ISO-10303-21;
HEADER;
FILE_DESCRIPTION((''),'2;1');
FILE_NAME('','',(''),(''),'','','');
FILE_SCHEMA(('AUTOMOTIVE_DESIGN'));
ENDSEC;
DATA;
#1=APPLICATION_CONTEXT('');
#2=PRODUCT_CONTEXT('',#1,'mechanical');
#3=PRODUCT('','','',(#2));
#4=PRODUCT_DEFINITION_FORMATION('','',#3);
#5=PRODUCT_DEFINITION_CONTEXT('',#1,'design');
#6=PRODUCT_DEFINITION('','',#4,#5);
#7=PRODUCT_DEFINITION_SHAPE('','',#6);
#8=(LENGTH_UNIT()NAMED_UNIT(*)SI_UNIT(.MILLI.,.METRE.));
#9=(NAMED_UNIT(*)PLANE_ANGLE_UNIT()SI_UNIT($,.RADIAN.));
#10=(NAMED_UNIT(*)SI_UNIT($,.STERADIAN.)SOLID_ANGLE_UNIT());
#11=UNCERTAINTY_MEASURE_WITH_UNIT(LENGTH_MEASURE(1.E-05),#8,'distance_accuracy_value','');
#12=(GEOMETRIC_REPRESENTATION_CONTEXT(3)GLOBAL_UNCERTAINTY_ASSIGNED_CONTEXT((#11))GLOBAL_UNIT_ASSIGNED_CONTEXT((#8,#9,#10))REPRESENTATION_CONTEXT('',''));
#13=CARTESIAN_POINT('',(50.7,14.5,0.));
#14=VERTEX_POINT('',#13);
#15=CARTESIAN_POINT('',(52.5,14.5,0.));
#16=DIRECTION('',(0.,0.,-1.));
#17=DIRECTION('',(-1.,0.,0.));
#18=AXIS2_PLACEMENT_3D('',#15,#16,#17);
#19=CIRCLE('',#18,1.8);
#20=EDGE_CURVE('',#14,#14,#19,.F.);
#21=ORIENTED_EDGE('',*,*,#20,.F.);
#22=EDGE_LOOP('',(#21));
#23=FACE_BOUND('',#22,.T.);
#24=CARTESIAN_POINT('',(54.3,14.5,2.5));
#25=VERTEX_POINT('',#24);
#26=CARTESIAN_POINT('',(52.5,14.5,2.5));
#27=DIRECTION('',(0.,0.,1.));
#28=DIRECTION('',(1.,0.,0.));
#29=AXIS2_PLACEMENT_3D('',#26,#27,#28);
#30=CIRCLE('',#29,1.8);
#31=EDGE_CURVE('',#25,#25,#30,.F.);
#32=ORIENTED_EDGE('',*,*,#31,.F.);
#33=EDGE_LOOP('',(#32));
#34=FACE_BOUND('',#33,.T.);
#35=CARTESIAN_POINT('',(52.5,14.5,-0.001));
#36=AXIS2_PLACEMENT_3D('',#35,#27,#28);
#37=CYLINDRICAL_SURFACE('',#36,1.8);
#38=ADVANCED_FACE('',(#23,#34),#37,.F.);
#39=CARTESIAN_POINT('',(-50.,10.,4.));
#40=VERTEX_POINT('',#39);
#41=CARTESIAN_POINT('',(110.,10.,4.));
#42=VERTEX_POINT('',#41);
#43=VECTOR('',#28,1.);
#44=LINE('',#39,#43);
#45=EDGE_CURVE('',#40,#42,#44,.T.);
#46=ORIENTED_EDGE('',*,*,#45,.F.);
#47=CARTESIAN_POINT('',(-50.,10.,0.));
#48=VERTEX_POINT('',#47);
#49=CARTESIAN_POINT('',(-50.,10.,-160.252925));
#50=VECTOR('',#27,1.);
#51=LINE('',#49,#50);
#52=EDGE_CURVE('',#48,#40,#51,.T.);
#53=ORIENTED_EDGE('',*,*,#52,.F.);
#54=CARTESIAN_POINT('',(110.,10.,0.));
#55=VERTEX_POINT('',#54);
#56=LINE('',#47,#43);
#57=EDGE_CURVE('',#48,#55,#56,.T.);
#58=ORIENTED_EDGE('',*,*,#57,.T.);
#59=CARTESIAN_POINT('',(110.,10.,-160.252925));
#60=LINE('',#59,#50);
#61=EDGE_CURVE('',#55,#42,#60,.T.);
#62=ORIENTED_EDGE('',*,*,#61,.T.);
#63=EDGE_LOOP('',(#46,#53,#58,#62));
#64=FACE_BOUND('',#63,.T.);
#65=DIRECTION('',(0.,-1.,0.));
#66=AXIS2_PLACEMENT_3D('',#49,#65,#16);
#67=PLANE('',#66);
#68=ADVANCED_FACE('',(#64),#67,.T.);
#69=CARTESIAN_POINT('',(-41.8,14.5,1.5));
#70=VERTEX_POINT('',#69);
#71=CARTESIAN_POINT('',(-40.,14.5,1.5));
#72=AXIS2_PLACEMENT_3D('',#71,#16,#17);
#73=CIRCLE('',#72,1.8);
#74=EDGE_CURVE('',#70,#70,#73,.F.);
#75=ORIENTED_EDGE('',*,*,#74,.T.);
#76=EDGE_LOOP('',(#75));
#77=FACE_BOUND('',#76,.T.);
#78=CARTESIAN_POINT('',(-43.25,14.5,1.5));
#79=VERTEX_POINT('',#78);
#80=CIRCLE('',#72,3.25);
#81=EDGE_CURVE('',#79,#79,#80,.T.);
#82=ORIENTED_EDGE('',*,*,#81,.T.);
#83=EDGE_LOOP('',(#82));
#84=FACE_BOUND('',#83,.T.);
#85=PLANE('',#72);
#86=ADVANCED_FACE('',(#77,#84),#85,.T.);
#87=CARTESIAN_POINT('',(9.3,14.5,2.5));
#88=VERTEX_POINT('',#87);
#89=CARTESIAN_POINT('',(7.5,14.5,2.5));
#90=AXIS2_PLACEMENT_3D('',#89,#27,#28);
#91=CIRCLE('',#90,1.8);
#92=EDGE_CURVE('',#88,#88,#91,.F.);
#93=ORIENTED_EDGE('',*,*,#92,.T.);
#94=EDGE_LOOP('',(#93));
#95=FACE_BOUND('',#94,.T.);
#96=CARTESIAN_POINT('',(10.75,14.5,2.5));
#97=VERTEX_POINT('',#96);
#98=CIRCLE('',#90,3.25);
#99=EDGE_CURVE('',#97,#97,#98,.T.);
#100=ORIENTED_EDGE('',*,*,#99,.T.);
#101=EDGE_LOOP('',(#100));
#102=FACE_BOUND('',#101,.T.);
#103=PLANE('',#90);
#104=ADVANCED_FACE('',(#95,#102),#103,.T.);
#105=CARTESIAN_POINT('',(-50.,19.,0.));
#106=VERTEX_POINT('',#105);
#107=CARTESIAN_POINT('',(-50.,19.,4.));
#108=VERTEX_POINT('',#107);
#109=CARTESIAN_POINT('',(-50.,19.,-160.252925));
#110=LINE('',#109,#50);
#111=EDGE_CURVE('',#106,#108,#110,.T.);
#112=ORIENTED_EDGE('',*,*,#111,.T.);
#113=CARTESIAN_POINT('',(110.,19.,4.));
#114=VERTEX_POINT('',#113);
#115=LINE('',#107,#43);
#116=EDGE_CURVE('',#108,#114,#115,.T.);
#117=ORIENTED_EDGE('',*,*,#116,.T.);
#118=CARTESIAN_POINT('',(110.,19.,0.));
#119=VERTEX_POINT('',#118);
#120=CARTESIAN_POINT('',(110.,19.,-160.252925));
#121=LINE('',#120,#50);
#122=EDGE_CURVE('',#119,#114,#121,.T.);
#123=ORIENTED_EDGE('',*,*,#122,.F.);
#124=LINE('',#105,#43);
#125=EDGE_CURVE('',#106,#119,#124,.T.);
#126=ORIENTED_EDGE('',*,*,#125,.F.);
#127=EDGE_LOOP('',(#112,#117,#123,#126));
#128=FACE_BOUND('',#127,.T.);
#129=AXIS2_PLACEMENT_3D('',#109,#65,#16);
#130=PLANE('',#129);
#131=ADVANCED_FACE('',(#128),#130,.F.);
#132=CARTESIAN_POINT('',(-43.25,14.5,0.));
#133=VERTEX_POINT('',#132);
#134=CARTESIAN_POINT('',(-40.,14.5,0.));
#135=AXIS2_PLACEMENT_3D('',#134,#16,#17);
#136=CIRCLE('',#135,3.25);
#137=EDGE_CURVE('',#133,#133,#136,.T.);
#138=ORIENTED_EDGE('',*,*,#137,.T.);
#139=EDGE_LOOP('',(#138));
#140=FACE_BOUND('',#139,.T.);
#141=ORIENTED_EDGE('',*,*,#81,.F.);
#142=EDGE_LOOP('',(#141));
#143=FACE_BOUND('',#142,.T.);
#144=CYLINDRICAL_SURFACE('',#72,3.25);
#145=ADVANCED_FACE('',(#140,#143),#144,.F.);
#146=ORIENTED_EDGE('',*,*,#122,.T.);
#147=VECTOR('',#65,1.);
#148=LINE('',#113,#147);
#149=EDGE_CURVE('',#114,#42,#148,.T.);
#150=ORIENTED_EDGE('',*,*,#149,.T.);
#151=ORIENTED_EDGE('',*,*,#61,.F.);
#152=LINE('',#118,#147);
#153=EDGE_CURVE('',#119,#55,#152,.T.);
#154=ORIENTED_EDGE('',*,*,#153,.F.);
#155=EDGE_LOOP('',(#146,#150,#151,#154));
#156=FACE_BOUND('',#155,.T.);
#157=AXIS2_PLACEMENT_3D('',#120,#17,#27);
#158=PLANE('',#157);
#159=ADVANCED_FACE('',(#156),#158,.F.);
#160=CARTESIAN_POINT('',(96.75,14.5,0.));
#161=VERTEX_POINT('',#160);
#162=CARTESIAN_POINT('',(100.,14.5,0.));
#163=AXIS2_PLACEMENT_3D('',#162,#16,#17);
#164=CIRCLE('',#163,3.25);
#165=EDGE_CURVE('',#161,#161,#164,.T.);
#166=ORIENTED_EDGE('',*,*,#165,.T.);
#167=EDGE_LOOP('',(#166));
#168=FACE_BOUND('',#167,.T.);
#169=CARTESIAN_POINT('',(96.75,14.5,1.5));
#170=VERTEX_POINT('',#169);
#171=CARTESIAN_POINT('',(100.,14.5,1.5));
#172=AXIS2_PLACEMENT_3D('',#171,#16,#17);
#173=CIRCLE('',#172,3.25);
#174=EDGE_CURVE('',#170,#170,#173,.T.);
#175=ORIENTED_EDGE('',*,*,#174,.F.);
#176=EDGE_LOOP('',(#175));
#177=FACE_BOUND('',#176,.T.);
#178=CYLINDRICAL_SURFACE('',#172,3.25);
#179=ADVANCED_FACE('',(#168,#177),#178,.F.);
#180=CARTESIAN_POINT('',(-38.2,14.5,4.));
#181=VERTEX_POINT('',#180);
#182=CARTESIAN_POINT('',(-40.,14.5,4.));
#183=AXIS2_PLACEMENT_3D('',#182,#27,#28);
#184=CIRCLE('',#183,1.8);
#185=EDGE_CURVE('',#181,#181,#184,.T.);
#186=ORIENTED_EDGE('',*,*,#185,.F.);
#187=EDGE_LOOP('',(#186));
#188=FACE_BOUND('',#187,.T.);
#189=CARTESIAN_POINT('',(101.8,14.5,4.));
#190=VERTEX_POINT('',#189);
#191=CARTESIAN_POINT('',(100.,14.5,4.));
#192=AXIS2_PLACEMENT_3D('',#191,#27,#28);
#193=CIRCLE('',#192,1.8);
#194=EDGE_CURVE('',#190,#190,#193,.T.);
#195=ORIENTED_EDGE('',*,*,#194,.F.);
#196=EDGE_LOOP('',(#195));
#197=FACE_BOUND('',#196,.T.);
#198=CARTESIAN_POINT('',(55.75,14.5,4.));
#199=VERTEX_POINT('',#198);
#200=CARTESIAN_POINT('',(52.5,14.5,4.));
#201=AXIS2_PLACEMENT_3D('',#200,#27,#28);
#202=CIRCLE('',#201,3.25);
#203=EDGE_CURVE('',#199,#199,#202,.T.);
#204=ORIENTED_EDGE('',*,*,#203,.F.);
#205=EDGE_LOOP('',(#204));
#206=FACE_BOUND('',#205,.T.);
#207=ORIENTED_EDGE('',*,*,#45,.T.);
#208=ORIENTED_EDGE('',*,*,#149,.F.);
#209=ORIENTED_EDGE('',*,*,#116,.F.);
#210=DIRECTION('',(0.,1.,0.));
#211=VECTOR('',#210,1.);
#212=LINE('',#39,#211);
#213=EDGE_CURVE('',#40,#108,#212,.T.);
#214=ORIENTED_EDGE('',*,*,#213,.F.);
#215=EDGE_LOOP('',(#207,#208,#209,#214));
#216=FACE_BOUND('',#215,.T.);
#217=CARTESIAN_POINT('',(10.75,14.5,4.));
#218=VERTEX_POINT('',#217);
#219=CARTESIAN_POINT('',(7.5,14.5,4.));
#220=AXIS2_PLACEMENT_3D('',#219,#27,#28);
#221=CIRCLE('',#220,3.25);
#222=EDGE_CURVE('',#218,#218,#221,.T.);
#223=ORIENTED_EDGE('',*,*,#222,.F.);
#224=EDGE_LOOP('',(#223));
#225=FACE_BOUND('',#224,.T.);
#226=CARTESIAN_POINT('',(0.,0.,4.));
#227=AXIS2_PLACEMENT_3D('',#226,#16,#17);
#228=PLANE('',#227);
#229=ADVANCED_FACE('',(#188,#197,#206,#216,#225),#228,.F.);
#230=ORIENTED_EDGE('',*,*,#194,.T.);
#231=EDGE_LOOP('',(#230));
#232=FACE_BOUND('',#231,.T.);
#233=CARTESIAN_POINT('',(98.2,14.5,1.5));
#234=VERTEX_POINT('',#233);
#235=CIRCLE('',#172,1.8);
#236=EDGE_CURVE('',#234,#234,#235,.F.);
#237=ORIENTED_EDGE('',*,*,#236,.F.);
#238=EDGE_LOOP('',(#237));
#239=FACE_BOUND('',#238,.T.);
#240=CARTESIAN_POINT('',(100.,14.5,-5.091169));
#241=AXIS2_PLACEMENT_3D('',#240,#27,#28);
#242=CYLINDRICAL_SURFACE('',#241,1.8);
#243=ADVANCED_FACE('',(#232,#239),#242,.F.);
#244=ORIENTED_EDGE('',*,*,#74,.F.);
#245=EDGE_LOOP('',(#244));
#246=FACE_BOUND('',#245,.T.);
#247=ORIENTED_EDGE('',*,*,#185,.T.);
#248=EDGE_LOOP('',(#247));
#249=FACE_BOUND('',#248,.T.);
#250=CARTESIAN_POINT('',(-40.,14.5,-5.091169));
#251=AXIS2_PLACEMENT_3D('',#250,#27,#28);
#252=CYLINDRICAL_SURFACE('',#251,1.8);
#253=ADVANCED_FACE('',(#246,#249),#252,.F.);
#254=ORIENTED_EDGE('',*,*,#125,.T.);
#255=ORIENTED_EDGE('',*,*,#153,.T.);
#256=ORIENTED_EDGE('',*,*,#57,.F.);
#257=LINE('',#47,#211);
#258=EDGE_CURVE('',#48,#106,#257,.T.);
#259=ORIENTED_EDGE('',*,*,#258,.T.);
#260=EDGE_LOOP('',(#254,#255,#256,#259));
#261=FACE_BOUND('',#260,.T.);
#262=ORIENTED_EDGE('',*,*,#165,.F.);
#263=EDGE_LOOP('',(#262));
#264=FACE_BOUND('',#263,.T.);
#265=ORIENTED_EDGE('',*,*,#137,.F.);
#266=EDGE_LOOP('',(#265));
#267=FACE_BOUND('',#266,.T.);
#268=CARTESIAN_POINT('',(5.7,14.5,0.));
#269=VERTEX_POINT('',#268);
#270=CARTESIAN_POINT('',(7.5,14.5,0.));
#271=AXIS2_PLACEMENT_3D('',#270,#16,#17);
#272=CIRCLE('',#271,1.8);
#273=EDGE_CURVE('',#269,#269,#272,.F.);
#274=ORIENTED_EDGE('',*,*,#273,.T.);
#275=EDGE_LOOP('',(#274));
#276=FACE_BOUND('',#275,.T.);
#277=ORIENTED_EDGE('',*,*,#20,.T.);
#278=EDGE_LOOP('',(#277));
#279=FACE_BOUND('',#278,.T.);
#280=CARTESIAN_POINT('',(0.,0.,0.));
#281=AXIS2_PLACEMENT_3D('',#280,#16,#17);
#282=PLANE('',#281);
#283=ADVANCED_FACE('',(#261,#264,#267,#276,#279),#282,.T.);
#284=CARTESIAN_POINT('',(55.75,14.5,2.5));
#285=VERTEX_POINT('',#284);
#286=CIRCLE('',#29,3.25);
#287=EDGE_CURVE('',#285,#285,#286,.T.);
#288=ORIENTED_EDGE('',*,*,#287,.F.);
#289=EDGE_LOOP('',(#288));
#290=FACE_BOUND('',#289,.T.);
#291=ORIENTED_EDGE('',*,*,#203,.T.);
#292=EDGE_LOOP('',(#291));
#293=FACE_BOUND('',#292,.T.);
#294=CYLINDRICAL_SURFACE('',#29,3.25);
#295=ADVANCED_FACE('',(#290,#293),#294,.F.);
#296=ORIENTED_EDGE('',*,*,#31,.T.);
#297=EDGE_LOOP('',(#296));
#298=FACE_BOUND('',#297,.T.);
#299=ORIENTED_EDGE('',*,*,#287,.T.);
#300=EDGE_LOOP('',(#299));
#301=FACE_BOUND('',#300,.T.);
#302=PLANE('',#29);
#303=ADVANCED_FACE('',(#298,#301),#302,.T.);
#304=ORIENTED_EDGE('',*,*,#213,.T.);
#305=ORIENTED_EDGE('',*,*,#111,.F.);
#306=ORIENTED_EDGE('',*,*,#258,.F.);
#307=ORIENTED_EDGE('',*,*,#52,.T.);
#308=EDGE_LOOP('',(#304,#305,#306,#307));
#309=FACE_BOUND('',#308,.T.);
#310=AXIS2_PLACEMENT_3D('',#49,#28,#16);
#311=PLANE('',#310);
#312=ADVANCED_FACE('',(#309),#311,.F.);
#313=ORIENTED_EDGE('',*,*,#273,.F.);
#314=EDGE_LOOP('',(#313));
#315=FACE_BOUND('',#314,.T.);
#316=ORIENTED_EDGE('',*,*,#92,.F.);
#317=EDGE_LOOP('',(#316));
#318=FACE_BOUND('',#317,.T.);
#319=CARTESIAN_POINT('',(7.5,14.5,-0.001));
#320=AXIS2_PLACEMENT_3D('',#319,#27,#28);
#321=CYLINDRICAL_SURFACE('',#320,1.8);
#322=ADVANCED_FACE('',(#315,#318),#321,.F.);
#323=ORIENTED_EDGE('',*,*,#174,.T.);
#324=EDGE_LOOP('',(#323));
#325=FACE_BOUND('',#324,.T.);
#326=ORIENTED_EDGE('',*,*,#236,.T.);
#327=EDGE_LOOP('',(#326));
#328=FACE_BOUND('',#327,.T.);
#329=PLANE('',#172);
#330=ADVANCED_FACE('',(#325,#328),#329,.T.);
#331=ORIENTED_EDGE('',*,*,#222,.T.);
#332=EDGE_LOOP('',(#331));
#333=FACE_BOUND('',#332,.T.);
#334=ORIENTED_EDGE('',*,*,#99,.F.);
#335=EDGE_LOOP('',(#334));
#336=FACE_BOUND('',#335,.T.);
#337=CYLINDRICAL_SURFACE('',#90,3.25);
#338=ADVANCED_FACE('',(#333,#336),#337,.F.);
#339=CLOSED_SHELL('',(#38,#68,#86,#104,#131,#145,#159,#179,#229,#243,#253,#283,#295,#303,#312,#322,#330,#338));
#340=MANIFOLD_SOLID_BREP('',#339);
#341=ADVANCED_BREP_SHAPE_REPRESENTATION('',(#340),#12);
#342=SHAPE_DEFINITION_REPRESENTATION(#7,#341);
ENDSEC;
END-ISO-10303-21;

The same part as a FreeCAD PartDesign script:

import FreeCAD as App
import Part
import Sketcher

V = App.Vector


def add_polygon(sketch, points):
    """Adds a closed chain of lines whose ends are joined by coincident constraints."""
    first, n = sketch.GeometryCount, len(points)
    for a, b in zip(points, points[1:] + points[:1]):
        sketch.addGeometry(Part.LineSegment(App.Vector(*a, 0), App.Vector(*b, 0)), False)
    for i in range(n):
        sketch.addConstraint(Sketcher.Constraint("Coincident", first + i, 2, first + (i + 1) % n, 1))

doc = App.newDocument("Part")
body = doc.addObject("PartDesign::Body", "Body")

# Sketch on XY plane
sketch1 = body.newObject("Sketcher::SketchObject", "Sketch")
sketch1.AttachmentSupport = (doc.getObject("XY_Plane"), [""])
sketch1.MapMode = "FlatFace"
add_polygon(sketch1, [(0, 10), (0, 0), (60, 0), (60, 10)])  # lines 0-3
sketch1.addGeometry(Part.Circle(V(7.5, 5, 0), V(0, 0, 1), 1.8), False)  # 4
sketch1.addGeometry(Part.Circle(V(52.5, 5, 0), V(0, 0, 1), 1.8), False)  # 5
sketch1.addConstraint(Sketcher.Constraint("Vertical", 0))
sketch1.addConstraint(Sketcher.Constraint("Horizontal", 1))
sketch1.addConstraint(Sketcher.Constraint("Vertical", 2))
sketch1.addConstraint(Sketcher.Constraint("Horizontal", 3))
sketch1.addConstraint(Sketcher.Constraint("Coincident", 0, 2, -1, 1))
sketch1.addConstraint(Sketcher.Constraint("Equal", 4, 5))
sketch1.addConstraint(Sketcher.Constraint("Horizontal", 4, 3, 5, 3))
sketch1.addConstraint(Sketcher.Constraint("Diameter", 4, 3.6))
sketch1.addConstraint(Sketcher.Constraint("DistanceX", 1, 1, 1, 2, 60.0))
sketch1.addConstraint(Sketcher.Constraint("DistanceY", 0, 2, 0, 1, 10.0))
sketch1.addConstraint(Sketcher.Constraint("DistanceY", -1, 1, 4, 3, 5.0))
sketch1.addConstraint(Sketcher.Constraint("DistanceX", 4, 3, 5, 3, 45.0))
sketch1.addConstraint(Sketcher.Constraint("DistanceX", -1, 1, 4, 3, 7.5))
pad1 = body.newObject("PartDesign::Pad", "Pad")
pad1.Profile = sketch1
pad1.Length = 4

# Sketch on XY plane
sketch2 = body.newObject("Sketcher::SketchObject", "Sketch001")
sketch2.AttachmentSupport = (doc.getObject("XY_Plane"), [""])
sketch2.MapMode = "FlatFace"
sketch2.AttachmentOffset = App.Placement(V(0, 0, 4), App.Rotation())
sketch2.addGeometry(Part.Circle(V(7.5, 5, 0), V(0, 0, 1), 3), False)
sketch2.addGeometry(Part.Circle(V(52.5, 5, 0), V(0, 0, 1), 3), False)
sketch2.addConstraint(Sketcher.Constraint("Equal", 0, 1))
sketch2.addConstraint(Sketcher.Constraint("Horizontal", 0, 3, 1, 3))
sketch2.addConstraint(Sketcher.Constraint("Diameter", 0, 6.0))
sketch2.addConstraint(Sketcher.Constraint("DistanceY", -1, 1, 0, 3, 5.0))
sketch2.addConstraint(Sketcher.Constraint("DistanceX", 0, 3, 1, 3, 45.0))
sketch2.addConstraint(Sketcher.Constraint("DistanceX", -1, 1, 0, 3, 7.5))
pocket1 = body.newObject("PartDesign::Pocket", "Pocket")
pocket1.Profile = sketch2
pocket1.Length = 2

# Sketch on XY plane
sketch3 = body.newObject("Sketcher::SketchObject", "Sketch002")
sketch3.AttachmentSupport = (doc.getObject("XY_Plane"), [""])
sketch3.MapMode = "FlatFace"
sketch3.AttachmentOffset = App.Placement(V(0, 0, 4), App.Rotation())
add_polygon(sketch3, [(-50, 19), (-50, 10), (110, 10), (110, 19)])  # lines 0-3
sketch3.addConstraint(Sketcher.Constraint("Vertical", 0))
sketch3.addConstraint(Sketcher.Constraint("Horizontal", 1))
sketch3.addConstraint(Sketcher.Constraint("Vertical", 2))
sketch3.addConstraint(Sketcher.Constraint("Horizontal", 3))
sketch3.addConstraint(Sketcher.Constraint("DistanceX", 1, 1, 1, 2, 160.0))
sketch3.addConstraint(Sketcher.Constraint("DistanceY", 0, 2, 0, 1, 9.0))
sketch3.addConstraint(Sketcher.Constraint("DistanceX", 0, 2, -1, 1, 50.0))
sketch3.addConstraint(Sketcher.Constraint("DistanceY", -1, 1, 0, 2, 10.0))
pad2 = body.newObject("PartDesign::Pad", "Pad001")
pad2.Profile = sketch3
pad2.Length = 4
pad2.Reversed = True

# Sketch on XY plane
sketch4 = body.newObject("Sketcher::SketchObject", "Sketch003")
sketch4.AttachmentSupport = (doc.getObject("XY_Plane"), [""])
sketch4.MapMode = "FlatFace"
sketch4.AttachmentOffset = App.Placement(V(0, 0, 4), App.Rotation())
sketch4.addGeometry(Part.Circle(V(-40, 14.5, 0), V(0, 0, 1), 1.8), False)
sketch4.addGeometry(Part.Circle(V(100, 14.5, 0), V(0, 0, 1), 1.8), False)
sketch4.addConstraint(Sketcher.Constraint("Equal", 0, 1))
sketch4.addConstraint(Sketcher.Constraint("Horizontal", 0, 3, 1, 3))
sketch4.addConstraint(Sketcher.Constraint("Diameter", 0, 3.6))
sketch4.addConstraint(Sketcher.Constraint("DistanceX", 0, 3, -1, 1, 40.0))
sketch4.addConstraint(Sketcher.Constraint("DistanceX", -1, 1, 1, 3, 100.0))
sketch4.addConstraint(Sketcher.Constraint("DistanceY", -1, 1, 0, 3, 14.5))
pocket2 = body.newObject("PartDesign::Pocket", "Pocket001")
pocket2.Profile = sketch4
pocket2.Length = 4

# Sketch on XY plane
sketch5 = body.newObject("Sketcher::SketchObject", "Sketch004")
sketch5.AttachmentSupport = (doc.getObject("XY_Plane"), [""])
sketch5.MapMode = "FlatFace"
sketch5.addGeometry(Part.Circle(V(100, 14.5, 0), V(0, 0, 1), 3.2), False)
sketch5.addGeometry(Part.Circle(V(-40, 14.5, 0), V(0, 0, 1), 3.2), False)
sketch5.addConstraint(Sketcher.Constraint("Equal", 0, 1))
sketch5.addConstraint(Sketcher.Constraint("Horizontal", 0, 3, 1, 3))
sketch5.addConstraint(Sketcher.Constraint("Diameter", 0, 6.5))
sketch5.addConstraint(Sketcher.Constraint("DistanceX", -1, 1, 0, 3, 100.0))
sketch5.addConstraint(Sketcher.Constraint("DistanceX", 1, 3, -1, 1, 40.0))
sketch5.addConstraint(Sketcher.Constraint("DistanceY", -1, 1, 0, 3, 14.5))
pocket3 = body.newObject("PartDesign::Pocket", "Pocket002")
pocket3.Profile = sketch5
pocket3.Length = 1.5
pocket3.Reversed = True

# Sketch on XY plane
sketch6 = body.newObject("Sketcher::SketchObject", "Sketch005")
sketch6.AttachmentSupport = (doc.getObject("XY_Plane"), [""])
sketch6.MapMode = "FlatFace"
sketch6.AttachmentOffset = App.Placement(V(0, 0, 4), App.Rotation())
sketch6.addGeometry(Part.Circle(V(7.5, 14.5, 0), V(0, 0, 1), 1.8), False)
sketch6.addConstraint(Sketcher.Constraint("Diameter", 0, 3.6))
sketch6.addConstraint(Sketcher.Constraint("DistanceX", -1, 1, 0, 3, 7.5))
sketch6.addConstraint(Sketcher.Constraint("DistanceY", -1, 1, 0, 3, 14.5))
pocket4 = body.newObject("PartDesign::Pocket", "Pocket003")
pocket4.Profile = sketch6
pocket4.Type = "UpToFirst"

# Sketch on XY plane
sketch7 = body.newObject("Sketcher::SketchObject", "Sketch006")
sketch7.AttachmentSupport = (doc.getObject("XY_Plane"), [""])
sketch7.MapMode = "FlatFace"
sketch7.AttachmentOffset = App.Placement(V(0, 0, 4), App.Rotation())
sketch7.addGeometry(Part.Circle(V(52.5, 14.5, 0), V(0, 0, 1), 1.8), False)
sketch7.addConstraint(Sketcher.Constraint("Diameter", 0, 3.6))
sketch7.addConstraint(Sketcher.Constraint("DistanceX", -1, 1, 0, 3, 52.5))
sketch7.addConstraint(Sketcher.Constraint("DistanceY", -1, 1, 0, 3, 14.5))
pocket5 = body.newObject("PartDesign::Pocket", "Pocket004")
pocket5.Profile = sketch7
pocket5.Type = "UpToFirst"

# Sketch on XY plane
sketch8 = body.newObject("Sketcher::SketchObject", "Sketch007")
sketch8.AttachmentSupport = (doc.getObject("XY_Plane"), [""])
sketch8.MapMode = "FlatFace"
sketch8.AttachmentOffset = App.Placement(V(0, 0, 4), App.Rotation())
add_polygon(sketch8, [(0, 10), (0, 0), (60, 0), (60, 10)])  # lines 0-3
sketch8.addConstraint(Sketcher.Constraint("Vertical", 0))
sketch8.addConstraint(Sketcher.Constraint("Horizontal", 1))
sketch8.addConstraint(Sketcher.Constraint("Vertical", 2))
sketch8.addConstraint(Sketcher.Constraint("Horizontal", 3))
sketch8.addConstraint(Sketcher.Constraint("Coincident", 0, 2, -1, 1))
sketch8.addConstraint(Sketcher.Constraint("DistanceX", 1, 1, 1, 2, 60.0))
sketch8.addConstraint(Sketcher.Constraint("DistanceY", 0, 2, 0, 1, 10.0))
pocket6 = body.newObject("PartDesign::Pocket", "Pocket005")
pocket6.Profile = sketch8
pocket6.Type = "UpToFirst"

# Sketch on XY plane
sketch9 = body.newObject("Sketcher::SketchObject", "Sketch008")
sketch9.AttachmentSupport = (doc.getObject("XY_Plane"), [""])
sketch9.MapMode = "FlatFace"
sketch9.AttachmentOffset = App.Placement(V(0, 0, 4), App.Rotation())
sketch9.addGeometry(Part.Circle(V(7.5, 14.5, 0), V(0, 0, 1), 3.2), False)
sketch9.addGeometry(Part.Circle(V(52.5, 14.5, 0), V(0, 0, 1), 3.2), False)
sketch9.addConstraint(Sketcher.Constraint("Equal", 0, 1))
sketch9.addConstraint(Sketcher.Constraint("Horizontal", 0, 3, 1, 3))
sketch9.addConstraint(Sketcher.Constraint("Diameter", 0, 6.5))
sketch9.addConstraint(Sketcher.Constraint("DistanceX", 0, 3, 1, 3, 45.0))
sketch9.addConstraint(Sketcher.Constraint("DistanceX", -1, 1, 0, 3, 7.5))
sketch9.addConstraint(Sketcher.Constraint("DistanceY", -1, 1, 0, 3, 14.5))
pocket7 = body.newObject("PartDesign::Pocket", "Pocket006")
pocket7.Profile = sketch9
pocket7.Length = 1.5

doc.recompute()
